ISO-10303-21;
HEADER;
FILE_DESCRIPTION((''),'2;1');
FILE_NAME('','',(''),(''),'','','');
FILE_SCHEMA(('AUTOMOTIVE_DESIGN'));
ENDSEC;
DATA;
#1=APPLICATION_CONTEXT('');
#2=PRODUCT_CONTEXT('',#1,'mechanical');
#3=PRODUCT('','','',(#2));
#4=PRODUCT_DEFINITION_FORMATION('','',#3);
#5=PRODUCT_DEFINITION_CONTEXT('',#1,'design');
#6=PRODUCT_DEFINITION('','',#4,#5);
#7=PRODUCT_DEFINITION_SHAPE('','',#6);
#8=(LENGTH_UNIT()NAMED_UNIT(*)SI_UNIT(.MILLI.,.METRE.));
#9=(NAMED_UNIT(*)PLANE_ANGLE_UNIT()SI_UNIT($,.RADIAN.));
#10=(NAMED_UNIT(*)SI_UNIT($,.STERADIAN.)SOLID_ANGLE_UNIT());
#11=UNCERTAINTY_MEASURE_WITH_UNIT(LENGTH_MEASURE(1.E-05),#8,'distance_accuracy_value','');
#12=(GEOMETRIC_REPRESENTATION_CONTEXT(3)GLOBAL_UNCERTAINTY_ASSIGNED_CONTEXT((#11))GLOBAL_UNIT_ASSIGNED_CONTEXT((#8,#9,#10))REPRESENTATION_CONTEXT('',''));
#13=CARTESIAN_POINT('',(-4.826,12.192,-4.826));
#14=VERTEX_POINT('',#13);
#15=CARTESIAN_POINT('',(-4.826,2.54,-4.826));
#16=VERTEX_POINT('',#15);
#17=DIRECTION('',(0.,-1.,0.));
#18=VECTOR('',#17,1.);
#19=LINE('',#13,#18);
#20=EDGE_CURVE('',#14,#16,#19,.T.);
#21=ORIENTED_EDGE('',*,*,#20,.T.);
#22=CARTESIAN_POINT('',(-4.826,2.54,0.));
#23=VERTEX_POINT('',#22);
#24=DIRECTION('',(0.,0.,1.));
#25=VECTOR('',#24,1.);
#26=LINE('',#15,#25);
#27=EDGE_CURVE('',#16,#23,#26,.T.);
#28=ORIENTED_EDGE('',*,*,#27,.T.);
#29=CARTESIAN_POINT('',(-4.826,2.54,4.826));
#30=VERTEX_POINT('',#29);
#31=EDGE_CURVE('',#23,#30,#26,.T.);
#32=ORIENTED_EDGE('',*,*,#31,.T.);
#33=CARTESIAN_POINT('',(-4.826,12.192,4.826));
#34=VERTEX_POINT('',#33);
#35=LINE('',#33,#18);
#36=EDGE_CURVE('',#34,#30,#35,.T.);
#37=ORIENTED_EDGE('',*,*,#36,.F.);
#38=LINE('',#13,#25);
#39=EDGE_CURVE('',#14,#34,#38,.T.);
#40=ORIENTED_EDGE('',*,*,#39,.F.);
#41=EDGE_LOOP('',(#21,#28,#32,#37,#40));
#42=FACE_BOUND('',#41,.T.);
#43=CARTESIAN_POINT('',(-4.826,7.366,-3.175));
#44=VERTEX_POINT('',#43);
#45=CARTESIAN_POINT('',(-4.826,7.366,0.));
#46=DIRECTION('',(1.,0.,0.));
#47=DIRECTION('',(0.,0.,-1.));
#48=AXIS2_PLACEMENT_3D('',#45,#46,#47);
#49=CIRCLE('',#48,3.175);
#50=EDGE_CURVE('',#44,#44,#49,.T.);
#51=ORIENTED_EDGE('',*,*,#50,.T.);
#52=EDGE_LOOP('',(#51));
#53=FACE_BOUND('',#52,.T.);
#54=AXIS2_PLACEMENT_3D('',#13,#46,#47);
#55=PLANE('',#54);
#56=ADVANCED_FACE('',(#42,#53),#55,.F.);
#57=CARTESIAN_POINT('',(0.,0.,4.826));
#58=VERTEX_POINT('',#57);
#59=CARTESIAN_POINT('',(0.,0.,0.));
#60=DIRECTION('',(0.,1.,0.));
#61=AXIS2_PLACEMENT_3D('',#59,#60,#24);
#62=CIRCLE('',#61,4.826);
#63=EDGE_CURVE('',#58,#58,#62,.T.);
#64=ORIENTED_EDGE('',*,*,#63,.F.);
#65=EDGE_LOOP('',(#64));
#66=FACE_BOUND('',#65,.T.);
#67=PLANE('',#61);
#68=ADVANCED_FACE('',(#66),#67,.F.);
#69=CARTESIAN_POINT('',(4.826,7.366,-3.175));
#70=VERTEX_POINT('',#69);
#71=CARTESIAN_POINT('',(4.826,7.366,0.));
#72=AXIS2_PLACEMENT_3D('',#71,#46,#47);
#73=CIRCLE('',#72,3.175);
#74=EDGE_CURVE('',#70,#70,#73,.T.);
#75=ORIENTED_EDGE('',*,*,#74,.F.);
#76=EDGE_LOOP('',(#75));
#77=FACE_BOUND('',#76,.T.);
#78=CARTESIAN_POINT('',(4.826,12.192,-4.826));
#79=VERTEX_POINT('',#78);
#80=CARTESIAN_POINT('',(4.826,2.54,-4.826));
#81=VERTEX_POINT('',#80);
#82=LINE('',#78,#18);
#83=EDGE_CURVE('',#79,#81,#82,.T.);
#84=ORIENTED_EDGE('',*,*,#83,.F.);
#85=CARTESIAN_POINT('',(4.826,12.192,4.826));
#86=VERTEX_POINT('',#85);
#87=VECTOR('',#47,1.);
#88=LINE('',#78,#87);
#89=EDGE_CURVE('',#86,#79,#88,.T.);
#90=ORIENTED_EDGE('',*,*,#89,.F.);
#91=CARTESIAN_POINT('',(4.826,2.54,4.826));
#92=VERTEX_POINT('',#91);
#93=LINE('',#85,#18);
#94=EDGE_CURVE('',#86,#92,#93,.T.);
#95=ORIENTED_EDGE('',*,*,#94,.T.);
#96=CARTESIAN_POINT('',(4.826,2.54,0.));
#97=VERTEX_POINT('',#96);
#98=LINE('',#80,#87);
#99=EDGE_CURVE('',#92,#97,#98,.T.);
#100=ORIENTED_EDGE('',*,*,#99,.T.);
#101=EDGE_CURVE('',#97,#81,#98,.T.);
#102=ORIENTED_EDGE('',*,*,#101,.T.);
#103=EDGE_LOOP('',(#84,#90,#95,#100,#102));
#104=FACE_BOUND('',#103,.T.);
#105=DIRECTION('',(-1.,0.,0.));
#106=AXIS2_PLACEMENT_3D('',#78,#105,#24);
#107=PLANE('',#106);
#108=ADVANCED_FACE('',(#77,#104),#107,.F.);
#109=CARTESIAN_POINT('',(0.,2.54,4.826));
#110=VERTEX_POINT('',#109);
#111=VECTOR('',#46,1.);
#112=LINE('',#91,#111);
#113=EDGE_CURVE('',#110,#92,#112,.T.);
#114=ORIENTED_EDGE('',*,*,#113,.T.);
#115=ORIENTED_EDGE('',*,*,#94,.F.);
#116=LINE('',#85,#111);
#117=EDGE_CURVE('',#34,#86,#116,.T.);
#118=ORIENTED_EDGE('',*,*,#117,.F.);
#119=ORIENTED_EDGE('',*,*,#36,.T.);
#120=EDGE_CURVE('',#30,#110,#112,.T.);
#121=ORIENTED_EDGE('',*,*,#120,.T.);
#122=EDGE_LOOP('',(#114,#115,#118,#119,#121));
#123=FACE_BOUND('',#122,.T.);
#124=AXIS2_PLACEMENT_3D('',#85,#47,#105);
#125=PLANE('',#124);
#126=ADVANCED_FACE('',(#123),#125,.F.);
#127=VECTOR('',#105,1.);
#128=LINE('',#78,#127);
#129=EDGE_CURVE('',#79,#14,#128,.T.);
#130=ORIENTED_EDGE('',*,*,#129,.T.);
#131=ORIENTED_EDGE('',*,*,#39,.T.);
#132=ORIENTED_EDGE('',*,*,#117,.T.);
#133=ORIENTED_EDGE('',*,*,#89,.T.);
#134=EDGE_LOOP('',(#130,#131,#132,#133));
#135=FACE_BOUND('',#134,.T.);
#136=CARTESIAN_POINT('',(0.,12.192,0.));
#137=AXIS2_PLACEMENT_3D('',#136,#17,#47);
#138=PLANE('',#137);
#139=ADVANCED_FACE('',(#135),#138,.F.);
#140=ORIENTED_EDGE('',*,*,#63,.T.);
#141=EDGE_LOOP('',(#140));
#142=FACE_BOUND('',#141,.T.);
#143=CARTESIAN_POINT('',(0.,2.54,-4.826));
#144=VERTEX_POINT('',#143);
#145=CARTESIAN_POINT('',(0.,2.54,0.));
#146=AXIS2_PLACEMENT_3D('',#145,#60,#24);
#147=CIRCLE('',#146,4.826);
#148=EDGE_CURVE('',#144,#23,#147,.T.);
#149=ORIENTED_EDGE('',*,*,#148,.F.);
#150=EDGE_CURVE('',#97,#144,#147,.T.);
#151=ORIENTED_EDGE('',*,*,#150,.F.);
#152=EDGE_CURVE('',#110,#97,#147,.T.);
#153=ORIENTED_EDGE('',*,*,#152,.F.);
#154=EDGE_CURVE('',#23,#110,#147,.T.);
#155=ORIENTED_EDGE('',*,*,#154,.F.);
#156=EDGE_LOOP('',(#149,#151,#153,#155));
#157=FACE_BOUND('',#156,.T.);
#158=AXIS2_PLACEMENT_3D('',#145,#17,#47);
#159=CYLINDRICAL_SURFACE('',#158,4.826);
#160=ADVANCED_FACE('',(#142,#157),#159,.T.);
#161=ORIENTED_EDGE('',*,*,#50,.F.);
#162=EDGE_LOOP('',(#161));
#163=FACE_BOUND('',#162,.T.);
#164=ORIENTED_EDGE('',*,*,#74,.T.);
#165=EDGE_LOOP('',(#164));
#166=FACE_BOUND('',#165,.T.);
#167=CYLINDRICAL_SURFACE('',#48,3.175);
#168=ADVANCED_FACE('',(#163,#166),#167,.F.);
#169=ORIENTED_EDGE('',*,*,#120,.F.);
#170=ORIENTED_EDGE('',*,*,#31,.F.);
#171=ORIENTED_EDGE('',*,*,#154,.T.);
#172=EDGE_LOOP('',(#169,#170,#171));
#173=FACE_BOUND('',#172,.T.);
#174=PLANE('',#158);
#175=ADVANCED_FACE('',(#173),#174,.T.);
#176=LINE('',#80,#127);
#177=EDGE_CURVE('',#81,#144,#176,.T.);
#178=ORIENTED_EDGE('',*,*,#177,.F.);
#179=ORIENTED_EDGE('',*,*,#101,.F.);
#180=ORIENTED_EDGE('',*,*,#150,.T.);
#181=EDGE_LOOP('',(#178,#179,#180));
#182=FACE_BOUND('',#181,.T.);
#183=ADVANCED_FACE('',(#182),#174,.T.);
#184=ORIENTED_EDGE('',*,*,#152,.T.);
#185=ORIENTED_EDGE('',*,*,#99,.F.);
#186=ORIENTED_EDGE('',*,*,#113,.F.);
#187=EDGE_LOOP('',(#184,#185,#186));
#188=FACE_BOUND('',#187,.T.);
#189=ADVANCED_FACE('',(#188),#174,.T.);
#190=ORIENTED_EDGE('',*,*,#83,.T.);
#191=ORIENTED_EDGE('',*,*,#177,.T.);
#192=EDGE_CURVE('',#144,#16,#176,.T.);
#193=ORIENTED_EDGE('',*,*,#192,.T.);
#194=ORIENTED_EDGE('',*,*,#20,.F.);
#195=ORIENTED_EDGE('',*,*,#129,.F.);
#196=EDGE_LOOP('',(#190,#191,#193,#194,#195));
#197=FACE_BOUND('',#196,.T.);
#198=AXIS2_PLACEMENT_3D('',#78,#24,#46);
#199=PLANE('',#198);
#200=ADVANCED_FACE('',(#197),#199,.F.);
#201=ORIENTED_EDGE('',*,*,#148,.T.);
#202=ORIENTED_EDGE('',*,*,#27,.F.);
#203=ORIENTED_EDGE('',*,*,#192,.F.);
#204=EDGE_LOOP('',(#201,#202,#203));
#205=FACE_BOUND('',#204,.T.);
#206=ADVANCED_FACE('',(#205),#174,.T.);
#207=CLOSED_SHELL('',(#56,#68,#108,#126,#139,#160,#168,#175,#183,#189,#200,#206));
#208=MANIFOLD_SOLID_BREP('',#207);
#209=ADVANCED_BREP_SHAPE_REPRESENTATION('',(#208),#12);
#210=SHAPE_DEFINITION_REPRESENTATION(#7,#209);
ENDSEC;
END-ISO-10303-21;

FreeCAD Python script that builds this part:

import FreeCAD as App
import Part
import Sketcher
from FreeCAD import Vector
Q = App.Units.Quantity

doc = App.newDocument("Part")
params = doc.addObject("Spreadsheet::Sheet", "Params")
for row, (alias, value) in enumerate([
    ("sketch1_diameter", "0.38 in"),
    ("pad1_length", "0.1 in"),
    ("sketch2_width", "0.38 in"),
    ("pad2_length", "0.38 in"),
    ("sketch3_diameter", "0.25 in"),
    ("pocket1_length", "0.38 in"),
], start=1):
    params.set(f"A{row}", alias)
    params.set(f"B{row}", "=" + value)
    params.setAlias(f"B{row}", alias)

body = doc.addObject("PartDesign::Body", "Body")

# Sketch on XZ plane
sketch1 = doc.addObject("Sketcher::SketchObject", "Sketch")
body.addObject(sketch1)
sketch1.AttachmentSupport = (doc.XZ_Plane, [""])
sketch1.MapMode = "FlatFace"
sketch1.addGeometry(Part.Circle(Vector(0, 0, 0), Vector(0, 0, 1), 4.8), False)
sketch1.addConstraint(Sketcher.Constraint("Coincident", 0, 3, -1, 1))
sketch1.addConstraint(Sketcher.Constraint("Diameter", 0, Q("0.38 in")))
sketch1.setExpression("Constraints[1]", "Params.sketch1_diameter")
pad1 = doc.addObject("PartDesign::Pad", "Pad")
body.addObject(pad1)
pad1.Profile = sketch1
pad1.setExpression("Length", "Params.pad1_length")
pad1.Reversed = True

# Sketch on XZ plane
sketch2 = doc.addObject("Sketcher::SketchObject", "Sketch001")
body.addObject(sketch2)
sketch2.AttachmentSupport = (doc.XZ_Plane, [""])
sketch2.MapMode = "FlatFace"
sketch2.AttachmentOffset = App.Placement(Vector(0, 0, -0.1 * 25.4), App.Rotation())
sketch2.addGeometry(Part.LineSegment(Vector(-5, -5, 0), Vector(-5, 5, 0)), False)
sketch2.addGeometry(Part.LineSegment(Vector(-5, 5, 0), Vector(5, 5, 0)), False)
sketch2.addGeometry(Part.LineSegment(Vector(5, 5, 0), Vector(5, -5, 0)), False)
sketch2.addGeometry(Part.LineSegment(Vector(5, -5, 0), Vector(-5, -5, 0)), False)
sketch2.addConstraint(Sketcher.Constraint("Coincident", 0, 2, 1, 1))
sketch2.addConstraint(Sketcher.Constraint("Coincident", 1, 2, 2, 1))
sketch2.addConstraint(Sketcher.Constraint("Coincident", 2, 2, 3, 1))
sketch2.addConstraint(Sketcher.Constraint("Coincident", 3, 2, 0, 1))
sketch2.addConstraint(Sketcher.Constraint("Vertical", 0))
sketch2.addConstraint(Sketcher.Constraint("Horizontal", 1))
sketch2.addConstraint(Sketcher.Constraint("Vertical", 2))
sketch2.addConstraint(Sketcher.Constraint("Horizontal", 3))
sketch2.addConstraint(Sketcher.Constraint("Symmetric", 0, 2, 2, 2, -1, 1))
sketch2.addConstraint(Sketcher.Constraint("Equal", 3, 0))
sketch2.addConstraint(Sketcher.Constraint("DistanceX", 1, 1, 1, 2, Q("0.38 in")))
sketch2.setExpression("Constraints[10]", "Params.sketch2_width")
pad2 = doc.addObject("PartDesign::Pad", "Pad001")
body.addObject(pad2)
pad2.Profile = sketch2
pad2.setExpression("Length", "Params.pad2_length")
pad2.Reversed = True

# Sketch on YZ plane
sketch3 = doc.addObject("Sketcher::SketchObject", "Sketch002")
body.addObject(sketch3)
sketch3.AttachmentSupport = (doc.YZ_Plane, [""])
sketch3.MapMode = "FlatFace"
sketch3.AttachmentOffset = App.Placement(Vector(0, 0, 0.19 * 25.4), App.Rotation())
sketch3.addGeometry(Part.Circle(Vector(7.4, 0, 0), Vector(0, 0, 1), 3.2), False)
sketch3.addConstraint(Sketcher.Constraint("PointOnObject", 0, 3, -1))
sketch3.addConstraint(Sketcher.Constraint("Diameter", 0, Q("0.25 in")))
sketch3.addConstraint(Sketcher.Constraint("DistanceX", -1, 1, 0, 3, Q("0.29 in")))
sketch3.setExpression("Constraints[1]", "Params.sketch3_diameter")
pocket1 = doc.addObject("PartDesign::Pocket", "Pocket")
body.addObject(pocket1)
pocket1.Profile = sketch3
pocket1.setExpression("Length", "Params.pocket1_length")

doc.recompute()
